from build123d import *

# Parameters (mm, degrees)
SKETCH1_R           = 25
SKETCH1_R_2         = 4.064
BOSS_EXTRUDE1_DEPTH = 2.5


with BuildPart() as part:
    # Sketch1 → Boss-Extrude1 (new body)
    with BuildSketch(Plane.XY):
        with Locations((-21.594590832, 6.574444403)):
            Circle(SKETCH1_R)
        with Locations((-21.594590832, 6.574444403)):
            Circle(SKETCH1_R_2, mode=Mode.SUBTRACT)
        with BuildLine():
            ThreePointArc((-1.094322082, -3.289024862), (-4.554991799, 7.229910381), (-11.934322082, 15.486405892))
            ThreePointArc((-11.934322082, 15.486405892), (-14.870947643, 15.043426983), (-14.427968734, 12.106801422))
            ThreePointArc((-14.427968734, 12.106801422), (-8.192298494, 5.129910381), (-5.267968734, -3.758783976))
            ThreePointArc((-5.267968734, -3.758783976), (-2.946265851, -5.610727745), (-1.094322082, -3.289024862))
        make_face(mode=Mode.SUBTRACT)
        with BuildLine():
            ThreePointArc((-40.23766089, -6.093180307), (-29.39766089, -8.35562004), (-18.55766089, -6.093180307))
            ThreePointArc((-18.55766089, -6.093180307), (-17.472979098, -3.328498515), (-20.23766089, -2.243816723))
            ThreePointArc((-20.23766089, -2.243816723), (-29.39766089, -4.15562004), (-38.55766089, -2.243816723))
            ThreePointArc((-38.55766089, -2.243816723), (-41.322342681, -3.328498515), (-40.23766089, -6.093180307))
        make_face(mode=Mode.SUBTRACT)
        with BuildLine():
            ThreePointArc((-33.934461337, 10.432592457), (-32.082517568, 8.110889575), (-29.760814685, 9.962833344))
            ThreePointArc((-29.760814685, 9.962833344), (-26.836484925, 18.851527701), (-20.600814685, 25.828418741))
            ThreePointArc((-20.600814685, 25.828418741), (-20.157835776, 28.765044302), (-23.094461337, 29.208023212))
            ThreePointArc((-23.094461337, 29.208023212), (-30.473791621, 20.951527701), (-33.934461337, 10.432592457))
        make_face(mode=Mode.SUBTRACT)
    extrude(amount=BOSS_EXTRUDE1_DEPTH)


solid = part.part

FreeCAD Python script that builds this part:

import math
import FreeCAD as App
import Part
import Sketcher
from FreeCAD import Vector

doc = App.newDocument("Part")
body = doc.addObject("PartDesign::Body", "Body")

sketch1 = body.newObject("Sketcher::SketchObject", "Sketch")
sketch1.AttachmentSupport = (doc.getObject("XY_Plane"), [""])
sketch1.MapMode = "FlatFace"
sketch1.addGeometry([
    Part.Circle(Vector(-21.594591, 6.574444, 0), Vector(0, 0, 1), 25),
    Part.ArcOfCircle(Part.Circle(Vector(-29.397661, 18.74438, 0), Vector(0, 0, 1), 27.1), math.radians(-113.578178), math.radians(-66.421822)),
    Part.ArcOfCircle(Part.Circle(Vector(-39.397661, -4.168499, 0), Vector(0, 0, 1), 2.1), math.radians(66.421822), math.radians(246.421821)),
    Part.ArcOfCircle(Part.Circle(Vector(-29.397661, 18.74438, 0), Vector(0, 0, 1), 22.9), math.radians(-113.578178), math.radians(-66.421822)),
    Part.ArcOfCircle(Part.Circle(Vector(-19.397661, -4.168499, 0), Vector(0, 0, 1), 2.1), math.radians(-66.421822), math.radians(113.578178)),
    Part.Circle(Vector(-21.594591, 6.574444, 0), Vector(0, 0, 1), 4.064),
    Part.ArcOfCircle(Part.Circle(Vector(-28.02428, -6.32009, 0), Vector(0, 0, 1), 27.1), math.radians(6.421822), math.radians(53.578178)),
    Part.ArcOfCircle(Part.Circle(Vector(-3.181145, -3.523904, 0), Vector(0, 0, 1), 2.1), math.radians(-173.578178), math.radians(6.421822)),
    Part.ArcOfCircle(Part.Circle(Vector(-28.02428, -6.32009, 0), Vector(0, 0, 1), 22.9), math.radians(6.421822), math.radians(53.578178)),
    Part.ArcOfCircle(Part.Circle(Vector(-13.181145, 13.796604, 0), Vector(0, 0, 1), 2.1), math.radians(53.578178), math.radians(233.578178)),
    Part.ArcOfCircle(Part.Circle(Vector(-31.847638, 10.197713, 0), Vector(0, 0, 1), 2.1), math.radians(173.578178), math.radians(353.578178)),
    Part.ArcOfCircle(Part.Circle(Vector(-7.004503, 7.401528, 0), Vector(0, 0, 1), 27.1), math.radians(126.421822), math.radians(173.578178)),
    Part.ArcOfCircle(Part.Circle(Vector(-21.847638, 27.518221, 0), Vector(0, 0, 1), 2.1), math.radians(-53.578178), math.radians(126.421821)),
    Part.ArcOfCircle(Part.Circle(Vector(-7.004503, 7.401528, 0), Vector(0, 0, 1), 22.9), math.radians(126.421822), math.radians(173.578178)),
], False)
sketch1.addConstraint([
    Sketcher.Constraint("Coincident", 1, 1, 2, 2),
    Sketcher.Constraint("Coincident", 2, 1, 3, 1),
    Sketcher.Constraint("Coincident", 3, 2, 4, 2),
    Sketcher.Constraint("Coincident", 4, 1, 1, 2),
    Sketcher.Constraint("Coincident", 6, 1, 7, 2),
    Sketcher.Constraint("Coincident", 7, 1, 8, 1),
    Sketcher.Constraint("Coincident", 8, 2, 9, 2),
    Sketcher.Constraint("Coincident", 9, 1, 6, 2),
    Sketcher.Constraint("Coincident", 10, 1, 11, 2),
    Sketcher.Constraint("Coincident", 11, 1, 12, 2),
    Sketcher.Constraint("Coincident", 12, 1, 13, 1),
    Sketcher.Constraint("Coincident", 13, 2, 10, 2),
    Sketcher.Constraint("Coincident", 3, 3, 1, 3),
    Sketcher.Constraint("Coincident", 5, 3, 0, 3),
    Sketcher.Constraint("Coincident", 8, 3, 6, 3),
    Sketcher.Constraint("Coincident", 13, 3, 11, 3),
    Sketcher.Constraint("Diameter", 0, 50.0),
    Sketcher.Constraint("Radius", 1, 27.1),
    Sketcher.Constraint("Radius", 2, 2.1),
    Sketcher.Constraint("Radius", 6, 27.1),
    Sketcher.Constraint("Radius", 7, 2.1),
    Sketcher.Constraint("Radius", 10, 2.1),
    Sketcher.Constraint("Radius", 11, 27.1),
    Sketcher.Constraint("Diameter", 5, 8.128),
    Sketcher.Constraint("DistanceX", 2, 3, 1, 3, 10.0),
    Sketcher.Constraint("DistanceX", 2, 3, 4, 3, 20.0),
    Sketcher.Constraint("DistanceX", 10, 3, 12, 3, 10.0),
    Sketcher.Constraint("DistanceX", 1, 1, 2, 3, 0.84),
    Sketcher.Constraint("DistanceX", 2, 3, 2, 1, 0.84),
    Sketcher.Constraint("DistanceX", 3, 2, 4, 3, 0.84),
    Sketcher.Constraint("DistanceX", 4, 3, 4, 1, 0.84),
    Sketcher.Constraint("DistanceY", 2, 3, -1, 1, 4.168499),
    Sketcher.Constraint("DistanceY", -1, 1, 8, 2, 12.106801),
    Sketcher.Constraint("DistanceX", 10, 1, 3, 3, 4.5368),
    Sketcher.Constraint("DistanceX", 1, 3, 11, 1, 6.3032),
    Sketcher.Constraint("DistanceX", 0, 3, -1, 1, 21.594591),
    Sketcher.Constraint("DistanceX", 1, 3, -1, 1, 29.397661),
    Sketcher.Constraint("DistanceX", 6, 3, -1, 1, 28.02428),
    Sketcher.Constraint("DistanceY", 6, 3, -1, 1, 6.32009),
    Sketcher.Constraint("DistanceX", 10, 3, -1, 1, 31.847638),
    Sketcher.Constraint("DistanceY", -1, 1, 12, 3, 27.518221),
    Sketcher.Constraint("DistanceX", 7, 1, -1, 1, 5.267969),
    Sketcher.Constraint("DistanceY", -1, 1, 12, 1, 25.828419),
    Sketcher.Constraint("DistanceY", 7, 3, 0, 3, 10.098349),
    Sketcher.Constraint("DistanceY", 0, 3, 9, 3, 7.222159),
    Sketcher.Constraint("DistanceY", 0, 3, 10, 3, 3.623268),
    Sketcher.Constraint("DistanceY", 2, 3, 10, 3, 14.366211),
    Sketcher.Constraint("DistanceY", 7, 3, 6, 1, 0.23488),
    Sketcher.Constraint("DistanceX", 9, 1, 13, 3, 4.929819),
    Sketcher.Constraint("DistanceY", 13, 2, 10, 3, 0.23488),
])
pad1 = body.newObject("PartDesign::Pad", "Pad")
pad1.Profile = sketch1
pad1.Length = 2.5

doc.recompute()
